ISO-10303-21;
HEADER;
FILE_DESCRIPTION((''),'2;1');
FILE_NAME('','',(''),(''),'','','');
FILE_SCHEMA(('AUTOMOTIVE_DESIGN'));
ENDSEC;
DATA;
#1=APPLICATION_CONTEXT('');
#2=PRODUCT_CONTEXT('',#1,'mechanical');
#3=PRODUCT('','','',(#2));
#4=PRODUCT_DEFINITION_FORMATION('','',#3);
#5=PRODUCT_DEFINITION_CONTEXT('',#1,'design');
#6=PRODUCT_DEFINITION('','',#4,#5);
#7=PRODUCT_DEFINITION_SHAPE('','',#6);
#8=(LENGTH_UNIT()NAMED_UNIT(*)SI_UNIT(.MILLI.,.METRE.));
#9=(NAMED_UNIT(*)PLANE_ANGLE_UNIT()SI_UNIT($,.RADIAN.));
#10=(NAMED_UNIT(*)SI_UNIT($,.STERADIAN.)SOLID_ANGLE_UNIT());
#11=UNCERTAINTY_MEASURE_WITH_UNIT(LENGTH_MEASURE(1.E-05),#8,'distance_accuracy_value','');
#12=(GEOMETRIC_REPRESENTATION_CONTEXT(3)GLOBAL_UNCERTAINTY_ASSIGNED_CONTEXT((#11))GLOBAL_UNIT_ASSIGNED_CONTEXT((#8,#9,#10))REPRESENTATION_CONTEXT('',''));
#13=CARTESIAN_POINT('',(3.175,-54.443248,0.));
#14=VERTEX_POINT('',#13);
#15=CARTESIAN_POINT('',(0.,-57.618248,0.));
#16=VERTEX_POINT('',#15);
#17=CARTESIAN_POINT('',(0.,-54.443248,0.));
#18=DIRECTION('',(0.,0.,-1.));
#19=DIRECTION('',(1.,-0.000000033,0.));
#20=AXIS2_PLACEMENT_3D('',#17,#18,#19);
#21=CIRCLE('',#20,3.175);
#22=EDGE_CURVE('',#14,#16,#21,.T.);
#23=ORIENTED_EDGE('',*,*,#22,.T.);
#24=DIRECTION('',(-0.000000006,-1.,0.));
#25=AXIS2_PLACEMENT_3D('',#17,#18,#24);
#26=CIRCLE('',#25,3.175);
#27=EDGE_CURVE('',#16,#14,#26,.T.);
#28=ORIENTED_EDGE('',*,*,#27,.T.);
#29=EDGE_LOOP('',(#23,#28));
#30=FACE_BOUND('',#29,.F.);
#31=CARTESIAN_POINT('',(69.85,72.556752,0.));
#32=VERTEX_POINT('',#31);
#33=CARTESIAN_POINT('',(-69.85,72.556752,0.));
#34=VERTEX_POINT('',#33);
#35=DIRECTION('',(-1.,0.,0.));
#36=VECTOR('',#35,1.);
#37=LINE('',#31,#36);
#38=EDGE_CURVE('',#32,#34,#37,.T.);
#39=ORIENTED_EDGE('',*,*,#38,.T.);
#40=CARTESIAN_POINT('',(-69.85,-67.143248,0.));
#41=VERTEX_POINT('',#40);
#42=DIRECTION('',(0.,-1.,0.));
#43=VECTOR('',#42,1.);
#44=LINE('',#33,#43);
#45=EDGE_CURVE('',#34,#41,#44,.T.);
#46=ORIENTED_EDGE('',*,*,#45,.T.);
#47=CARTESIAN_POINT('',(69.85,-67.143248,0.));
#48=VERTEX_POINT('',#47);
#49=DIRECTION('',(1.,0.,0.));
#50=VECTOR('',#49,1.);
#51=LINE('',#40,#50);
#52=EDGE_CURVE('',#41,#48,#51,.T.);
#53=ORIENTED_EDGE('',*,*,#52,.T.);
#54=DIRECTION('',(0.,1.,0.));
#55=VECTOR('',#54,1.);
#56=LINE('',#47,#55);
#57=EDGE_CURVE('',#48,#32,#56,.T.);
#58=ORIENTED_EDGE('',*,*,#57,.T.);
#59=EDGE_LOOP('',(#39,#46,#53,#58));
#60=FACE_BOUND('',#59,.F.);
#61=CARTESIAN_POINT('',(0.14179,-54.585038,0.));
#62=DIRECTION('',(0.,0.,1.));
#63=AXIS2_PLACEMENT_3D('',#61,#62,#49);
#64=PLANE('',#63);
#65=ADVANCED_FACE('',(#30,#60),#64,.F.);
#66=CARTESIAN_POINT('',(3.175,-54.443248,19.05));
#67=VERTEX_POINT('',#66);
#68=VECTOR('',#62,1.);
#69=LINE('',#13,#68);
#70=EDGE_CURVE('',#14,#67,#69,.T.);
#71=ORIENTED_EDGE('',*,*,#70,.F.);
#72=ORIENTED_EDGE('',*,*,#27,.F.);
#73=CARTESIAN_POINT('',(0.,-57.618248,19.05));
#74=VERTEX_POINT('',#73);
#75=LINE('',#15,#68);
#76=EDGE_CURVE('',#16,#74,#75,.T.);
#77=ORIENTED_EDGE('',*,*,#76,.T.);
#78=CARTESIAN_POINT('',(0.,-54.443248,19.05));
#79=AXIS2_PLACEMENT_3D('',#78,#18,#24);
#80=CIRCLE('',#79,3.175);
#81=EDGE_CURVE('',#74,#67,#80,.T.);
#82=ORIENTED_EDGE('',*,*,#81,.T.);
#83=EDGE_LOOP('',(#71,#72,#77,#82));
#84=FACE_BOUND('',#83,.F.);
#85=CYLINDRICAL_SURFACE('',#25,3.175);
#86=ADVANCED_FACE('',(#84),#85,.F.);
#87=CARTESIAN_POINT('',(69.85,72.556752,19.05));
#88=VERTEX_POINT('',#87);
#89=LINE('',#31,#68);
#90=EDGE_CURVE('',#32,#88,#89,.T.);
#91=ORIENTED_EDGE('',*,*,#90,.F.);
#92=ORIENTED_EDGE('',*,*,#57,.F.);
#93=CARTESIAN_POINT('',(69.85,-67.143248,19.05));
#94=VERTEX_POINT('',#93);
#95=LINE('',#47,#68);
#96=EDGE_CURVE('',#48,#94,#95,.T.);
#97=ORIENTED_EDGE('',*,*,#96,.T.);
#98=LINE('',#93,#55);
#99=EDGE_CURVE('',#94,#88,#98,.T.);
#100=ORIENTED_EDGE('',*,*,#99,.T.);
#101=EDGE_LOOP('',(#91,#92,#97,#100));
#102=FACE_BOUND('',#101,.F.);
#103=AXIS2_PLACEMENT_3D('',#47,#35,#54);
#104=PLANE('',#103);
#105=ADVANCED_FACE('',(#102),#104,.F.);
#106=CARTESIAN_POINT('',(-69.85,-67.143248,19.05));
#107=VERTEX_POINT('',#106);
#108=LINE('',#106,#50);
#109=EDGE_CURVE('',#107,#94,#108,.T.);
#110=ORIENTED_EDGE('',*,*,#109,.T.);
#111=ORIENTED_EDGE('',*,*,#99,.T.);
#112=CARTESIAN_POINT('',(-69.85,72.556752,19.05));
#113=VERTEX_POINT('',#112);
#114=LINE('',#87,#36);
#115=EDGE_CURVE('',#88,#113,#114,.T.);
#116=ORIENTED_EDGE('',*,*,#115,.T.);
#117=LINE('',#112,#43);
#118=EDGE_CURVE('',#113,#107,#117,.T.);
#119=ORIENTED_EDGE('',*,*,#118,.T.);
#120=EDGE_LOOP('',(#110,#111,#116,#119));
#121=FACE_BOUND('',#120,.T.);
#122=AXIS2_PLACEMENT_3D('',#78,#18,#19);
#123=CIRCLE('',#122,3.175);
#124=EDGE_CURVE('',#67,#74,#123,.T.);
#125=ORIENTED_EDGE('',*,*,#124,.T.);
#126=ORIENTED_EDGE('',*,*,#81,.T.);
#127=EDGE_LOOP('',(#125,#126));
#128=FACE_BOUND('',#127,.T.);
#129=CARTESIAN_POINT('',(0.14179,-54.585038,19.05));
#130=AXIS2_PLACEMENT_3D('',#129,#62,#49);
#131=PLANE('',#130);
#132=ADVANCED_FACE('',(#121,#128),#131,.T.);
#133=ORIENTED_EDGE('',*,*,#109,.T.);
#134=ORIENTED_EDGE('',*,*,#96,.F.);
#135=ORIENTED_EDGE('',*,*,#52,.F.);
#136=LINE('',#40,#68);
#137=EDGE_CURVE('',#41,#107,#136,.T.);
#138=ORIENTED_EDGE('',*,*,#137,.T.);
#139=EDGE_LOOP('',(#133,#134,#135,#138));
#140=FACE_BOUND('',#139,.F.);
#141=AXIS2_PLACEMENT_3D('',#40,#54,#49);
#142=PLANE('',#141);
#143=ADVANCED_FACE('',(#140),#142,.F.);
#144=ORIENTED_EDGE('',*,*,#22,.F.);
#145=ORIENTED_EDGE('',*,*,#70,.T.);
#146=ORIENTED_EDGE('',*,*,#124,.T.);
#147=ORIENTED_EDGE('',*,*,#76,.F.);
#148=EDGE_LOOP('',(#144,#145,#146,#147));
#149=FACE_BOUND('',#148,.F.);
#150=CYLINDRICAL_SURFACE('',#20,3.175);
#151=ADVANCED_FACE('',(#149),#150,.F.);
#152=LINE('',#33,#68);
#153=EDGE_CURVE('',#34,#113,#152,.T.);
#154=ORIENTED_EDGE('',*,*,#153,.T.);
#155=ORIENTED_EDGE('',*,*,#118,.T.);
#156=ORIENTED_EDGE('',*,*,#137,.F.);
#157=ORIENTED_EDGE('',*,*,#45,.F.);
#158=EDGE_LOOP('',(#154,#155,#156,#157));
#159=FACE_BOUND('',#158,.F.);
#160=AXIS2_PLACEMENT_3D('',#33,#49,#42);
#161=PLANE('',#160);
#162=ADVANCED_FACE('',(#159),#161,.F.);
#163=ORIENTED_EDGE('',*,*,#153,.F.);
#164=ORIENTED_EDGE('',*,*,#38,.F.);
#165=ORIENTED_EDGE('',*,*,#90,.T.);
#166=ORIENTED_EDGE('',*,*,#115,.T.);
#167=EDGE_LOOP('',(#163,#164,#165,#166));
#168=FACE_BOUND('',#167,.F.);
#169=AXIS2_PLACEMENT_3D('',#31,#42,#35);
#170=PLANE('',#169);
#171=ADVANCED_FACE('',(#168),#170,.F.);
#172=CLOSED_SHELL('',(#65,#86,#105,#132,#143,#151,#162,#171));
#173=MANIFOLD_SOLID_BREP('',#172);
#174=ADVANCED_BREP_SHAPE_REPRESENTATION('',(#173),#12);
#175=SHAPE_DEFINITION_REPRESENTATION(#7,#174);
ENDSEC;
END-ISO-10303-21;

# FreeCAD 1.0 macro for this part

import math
import FreeCAD as App
import Part
import Sketcher

V = App.Vector
Q = App.Units.Quantity


def add_polygon(sketch, points):
    """Adds a closed chain of lines whose ends are joined by coincident constraints."""
    first, n = sketch.GeometryCount, len(points)
    for a, b in zip(points, points[1:] + points[:1]):
        sketch.addGeometry(Part.LineSegment(App.Vector(*a, 0), App.Vector(*b, 0)), False)
    for i in range(n):
        sketch.addConstraint(Sketcher.Constraint("Coincident", first + i, 2, first + (i + 1) % n, 1))

doc = App.newDocument("Part")
body = doc.addObject("PartDesign::Body", "Body")

# Sketch on XY plane
sketch1 = body.newObject("Sketcher::SketchObject", "Sketch")
sketch1.AttachmentSupport = (doc.getObject("XY_Plane"), [""])
sketch1.MapMode = "FlatFace"
add_polygon(sketch1, [(69.8, 72.6), (-69.8, 72.6), (-69.8, -67.1), (69.8, -67.1)])  # lines 0-3
sketch1.addGeometry(Part.ArcOfCircle(Part.Circle(V(0, -54.4, 0), V(0, 0, 1), 3.2), math.radians(0), math.radians(270)), False)  # 4
sketch1.addGeometry(Part.ArcOfCircle(Part.Circle(V(0, -54.4, 0), V(0, 0, 1), 3.2), math.radians(-90), math.radians(0)), False)  # 5
sketch1.addConstraint([
    Sketcher.Constraint("Tangent", 4, 1, 5, 2),
    Sketcher.Constraint("Coincident", 5, 1, 4, 2),
    Sketcher.Constraint("Horizontal", 0),
    Sketcher.Constraint("Vertical", 1),
    Sketcher.Constraint("Horizontal", 2),
    Sketcher.Constraint("Vertical", 3),
    Sketcher.Constraint("PointOnObject", 4, 3, -2),
    Sketcher.Constraint("PointOnObject", 5, 1, -2),
    Sketcher.Constraint("Horizontal", 5, 3, 4, 1),
    Sketcher.Constraint("Equal", 2, 1),
    Sketcher.Constraint("DistanceX", 0, 2, 0, 1, Q("5.5 in")),
    Sketcher.Constraint("Radius", 4, Q("0.125 in")),
    Sketcher.Constraint("DistanceY", 5, 3, 0, 2, Q("5 in")),
    Sketcher.Constraint("DistanceX", 0, 2, -1, 1, Q("2.75 in")),
    Sketcher.Constraint("DistanceY", 4, 3, -1, 1, Q("54.443248 mm")),
])
pad1 = body.newObject("PartDesign::Pad", "Pad")
pad1.Profile = sketch1
pad1.Length = Q("0.75 in")

doc.recompute()
